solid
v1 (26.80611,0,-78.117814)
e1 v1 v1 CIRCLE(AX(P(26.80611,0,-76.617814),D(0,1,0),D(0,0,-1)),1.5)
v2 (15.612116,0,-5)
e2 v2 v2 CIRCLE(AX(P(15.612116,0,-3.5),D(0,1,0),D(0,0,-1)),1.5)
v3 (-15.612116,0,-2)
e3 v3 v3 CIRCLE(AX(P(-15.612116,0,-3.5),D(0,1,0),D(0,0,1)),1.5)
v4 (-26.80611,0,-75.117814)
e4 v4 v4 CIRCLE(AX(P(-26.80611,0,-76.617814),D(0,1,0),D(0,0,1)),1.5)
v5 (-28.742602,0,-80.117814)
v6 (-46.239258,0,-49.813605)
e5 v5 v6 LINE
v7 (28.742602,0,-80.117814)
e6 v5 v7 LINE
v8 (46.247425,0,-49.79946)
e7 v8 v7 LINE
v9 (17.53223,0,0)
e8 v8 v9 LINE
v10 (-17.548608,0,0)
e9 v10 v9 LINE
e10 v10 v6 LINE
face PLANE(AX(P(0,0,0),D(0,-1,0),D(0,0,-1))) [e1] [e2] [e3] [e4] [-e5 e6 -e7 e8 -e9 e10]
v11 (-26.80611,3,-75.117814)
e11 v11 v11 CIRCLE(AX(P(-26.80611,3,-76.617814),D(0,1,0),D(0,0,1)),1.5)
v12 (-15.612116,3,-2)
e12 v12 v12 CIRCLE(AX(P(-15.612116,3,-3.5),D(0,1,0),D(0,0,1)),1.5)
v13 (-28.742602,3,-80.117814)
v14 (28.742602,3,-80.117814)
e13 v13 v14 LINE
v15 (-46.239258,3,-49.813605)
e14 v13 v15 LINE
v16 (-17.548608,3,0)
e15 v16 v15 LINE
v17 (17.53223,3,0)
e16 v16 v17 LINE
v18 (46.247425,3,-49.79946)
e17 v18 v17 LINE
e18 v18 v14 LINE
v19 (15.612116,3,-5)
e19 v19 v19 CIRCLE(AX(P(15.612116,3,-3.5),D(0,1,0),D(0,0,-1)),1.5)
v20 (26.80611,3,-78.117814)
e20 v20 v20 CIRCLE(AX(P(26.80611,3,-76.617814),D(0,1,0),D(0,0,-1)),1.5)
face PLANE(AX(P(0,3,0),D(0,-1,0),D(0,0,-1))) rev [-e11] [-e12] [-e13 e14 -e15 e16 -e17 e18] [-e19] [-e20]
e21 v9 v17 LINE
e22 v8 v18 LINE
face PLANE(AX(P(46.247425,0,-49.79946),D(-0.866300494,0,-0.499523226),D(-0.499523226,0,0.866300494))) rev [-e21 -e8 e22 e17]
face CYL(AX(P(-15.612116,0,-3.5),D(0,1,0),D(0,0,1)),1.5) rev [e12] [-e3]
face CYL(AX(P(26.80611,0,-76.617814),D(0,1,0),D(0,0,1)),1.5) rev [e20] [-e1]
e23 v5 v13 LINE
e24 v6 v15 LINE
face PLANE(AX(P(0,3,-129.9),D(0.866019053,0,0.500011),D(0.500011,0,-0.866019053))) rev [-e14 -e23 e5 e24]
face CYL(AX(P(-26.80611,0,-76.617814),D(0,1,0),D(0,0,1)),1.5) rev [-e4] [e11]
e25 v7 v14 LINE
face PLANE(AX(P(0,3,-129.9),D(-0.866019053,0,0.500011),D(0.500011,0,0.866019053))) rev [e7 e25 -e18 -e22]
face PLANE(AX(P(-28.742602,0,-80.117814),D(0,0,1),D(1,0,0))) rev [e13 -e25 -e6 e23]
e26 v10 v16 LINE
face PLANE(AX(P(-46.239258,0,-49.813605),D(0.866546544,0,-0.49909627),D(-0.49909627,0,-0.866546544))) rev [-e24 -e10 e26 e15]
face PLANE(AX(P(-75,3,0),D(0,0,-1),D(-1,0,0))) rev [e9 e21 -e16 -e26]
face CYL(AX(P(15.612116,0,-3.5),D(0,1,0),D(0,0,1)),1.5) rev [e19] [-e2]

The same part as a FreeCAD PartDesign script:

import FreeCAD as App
import Part
import Sketcher
Q = App.Units.Quantity


def add_polygon(sketch, points):
    """Adds a closed chain of lines whose ends are joined by coincident constraints."""
    first, n = sketch.GeometryCount, len(points)
    for a, b in zip(points, points[1:] + points[:1]):
        sketch.addGeometry(Part.LineSegment(App.Vector(*a, 0), App.Vector(*b, 0)), False)
    for i in range(n):
        sketch.addConstraint(Sketcher.Constraint("Coincident", first + i, 2, first + (i + 1) % n, 1))

doc = App.newDocument("Part")
body = doc.addObject("PartDesign::Body", "Body")

sketch1 = doc.addObject("Sketcher::SketchObject", "Sketch")
body.addObject(sketch1)
sketch1.AttachmentSupport = (doc.XZ_Plane, [""])
sketch1.MapMode = "FlatFace"
add_polygon(sketch1, [(-75, 0), (75, 0), (0, -130)])
sketch1.addConstraint(Sketcher.Constraint("Horizontal", 0))
sketch1.addConstraint(Sketcher.Constraint("Symmetric", 0, 2, 2, 2, -1, 1))
sketch1.addConstraint(Sketcher.Constraint("PointOnObject", 1, 2, -2))
sketch1.addConstraint(Sketcher.Constraint("DistanceX", 0, 1, 0, 2, Q("150 mm")))
sketch1.addConstraint(Sketcher.Constraint("DistanceY", 1, 2, -1, 1, Q("129.9 mm")))
pad1 = doc.addObject("PartDesign::Pad", "Pad")
body.addObject(pad1)
pad1.Profile = sketch1
pad1.Length = 3
pad1.Reversed = True

sketch2 = doc.addObject("Sketcher::SketchObject", "Sketch001")
body.addObject(sketch2)
sketch2.AttachmentSupport = (doc.XZ_Plane, [""])
sketch2.MapMode = "FlatFace"
sketch2.AttachmentOffset = App.Placement(App.Vector(0, 0, -3), App.Rotation())
add_polygon(sketch2, [(-29, -80), (29, -80), (0, -130)])
add_polygon(sketch2, [(-18, 0), (-46, -50), (-75, 0)])
add_polygon(sketch2, [(18, 0), (75, 0), (46, -50)])
sketch2.addConstraint(Sketcher.Constraint("Horizontal", 0))
sketch2.addConstraint(Sketcher.Constraint("Horizontal", 5))
sketch2.addConstraint(Sketcher.Constraint("Horizontal", 6))
sketch2.addConstraint(Sketcher.Constraint("Symmetric", 4, 2, 6, 2, -1, 1))
sketch2.addConstraint(Sketcher.Constraint("PointOnObject", 1, 2, -2))
sketch2.addConstraint(Sketcher.Constraint("PointOnObject", 4, 2, -1))
sketch2.addConstraint(Sketcher.Constraint("Parallel", 2, 4))
sketch2.addConstraint(Sketcher.Constraint("Parallel", 1, 7))
sketch2.addConstraint(Sketcher.Constraint("Equal", 1, 2))
sketch2.addConstraint(Sketcher.Constraint("Equal", 3, 8))
sketch2.addConstraint(Sketcher.Constraint("DistanceX", 4, 2, -1, 1, Q("75 mm")))
sketch2.addConstraint(Sketcher.Constraint("DistanceY", 1, 2, -1, 1, Q("129.9 mm")))
sketch2.addConstraint(Sketcher.Constraint("DistanceX", 6, 1, 6, 2, Q("57.46777 mm")))
sketch2.addConstraint(Sketcher.Constraint("DistanceX", -1, 1, 0, 2, Q("28.742602 mm")))
sketch2.addConstraint(Sketcher.Constraint("Distance", 1, Q("57.483939 mm")))
sketch2.addConstraint(Sketcher.Constraint("DistanceX", 5, 1, 5, 2, Q("57.451392 mm")))
sketch2.addConstraint(Sketcher.Constraint("DistanceX", 3, 2, -1, 1, Q("46.239258 mm")))
pocket1 = doc.addObject("PartDesign::Pocket", "Pocket")
body.addObject(pocket1)
pocket1.Profile = sketch2
pocket1.Type = "ThroughAll"
pocket1.Reversed = True

sketch3 = doc.addObject("Sketcher::SketchObject", "Sketch002")
body.addObject(sketch3)
sketch3.AttachmentSupport = (doc.XZ_Plane, [""])
sketch3.MapMode = "FlatFace"
sketch3.AttachmentOffset = App.Placement(App.Vector(0, 0, -3), App.Rotation())
sketch3.addGeometry(Part.Circle(App.Vector(-26.8, -76.6, 0), App.Vector(0, 0, 1), 1.5), False)
sketch3.addGeometry(Part.Circle(App.Vector(26.8, -76.6, 0), App.Vector(0, 0, 1), 1.5), False)
sketch3.addGeometry(Part.Circle(App.Vector(-15.6, -3.5, 0), App.Vector(0, 0, 1), 1.5), False)
sketch3.addGeometry(Part.Circle(App.Vector(15.6, -3.5, 0), App.Vector(0, 0, 1), 1.5), False)
sketch3.addConstraint(Sketcher.Constraint("Equal", 0, 1))
sketch3.addConstraint(Sketcher.Constraint("Equal", 1, 2))
sketch3.addConstraint(Sketcher.Constraint("Equal", 2, 3))
sketch3.addConstraint(Sketcher.Constraint("Symmetric", 0, 3, 1, 3, -2))
sketch3.addConstraint(Sketcher.Constraint("Symmetric", 2, 3, 3, 3, -2))
sketch3.addConstraint(Sketcher.Constraint("Diameter", 0, Q("3 mm")))
sketch3.addConstraint(Sketcher.Constraint("DistanceY", 2, 3, -1, 1, Q("3.5 mm")))
sketch3.addConstraint(Sketcher.Constraint("DistanceX", 0, 3, -1, 1, Q("26.80611 mm")))
sketch3.addConstraint(Sketcher.Constraint("DistanceX", 2, 3, 3, 3, Q("31.224232 mm")))
sketch3.addConstraint(Sketcher.Constraint("DistanceY", 0, 3, -1, 1, Q("76.617814 mm")))
pocket2 = doc.addObject("PartDesign::Pocket", "Pocket001")
body.addObject(pocket2)
pocket2.Profile = sketch3
pocket2.Type = "ThroughAll"
pocket2.Reversed = True

doc.recompute()
